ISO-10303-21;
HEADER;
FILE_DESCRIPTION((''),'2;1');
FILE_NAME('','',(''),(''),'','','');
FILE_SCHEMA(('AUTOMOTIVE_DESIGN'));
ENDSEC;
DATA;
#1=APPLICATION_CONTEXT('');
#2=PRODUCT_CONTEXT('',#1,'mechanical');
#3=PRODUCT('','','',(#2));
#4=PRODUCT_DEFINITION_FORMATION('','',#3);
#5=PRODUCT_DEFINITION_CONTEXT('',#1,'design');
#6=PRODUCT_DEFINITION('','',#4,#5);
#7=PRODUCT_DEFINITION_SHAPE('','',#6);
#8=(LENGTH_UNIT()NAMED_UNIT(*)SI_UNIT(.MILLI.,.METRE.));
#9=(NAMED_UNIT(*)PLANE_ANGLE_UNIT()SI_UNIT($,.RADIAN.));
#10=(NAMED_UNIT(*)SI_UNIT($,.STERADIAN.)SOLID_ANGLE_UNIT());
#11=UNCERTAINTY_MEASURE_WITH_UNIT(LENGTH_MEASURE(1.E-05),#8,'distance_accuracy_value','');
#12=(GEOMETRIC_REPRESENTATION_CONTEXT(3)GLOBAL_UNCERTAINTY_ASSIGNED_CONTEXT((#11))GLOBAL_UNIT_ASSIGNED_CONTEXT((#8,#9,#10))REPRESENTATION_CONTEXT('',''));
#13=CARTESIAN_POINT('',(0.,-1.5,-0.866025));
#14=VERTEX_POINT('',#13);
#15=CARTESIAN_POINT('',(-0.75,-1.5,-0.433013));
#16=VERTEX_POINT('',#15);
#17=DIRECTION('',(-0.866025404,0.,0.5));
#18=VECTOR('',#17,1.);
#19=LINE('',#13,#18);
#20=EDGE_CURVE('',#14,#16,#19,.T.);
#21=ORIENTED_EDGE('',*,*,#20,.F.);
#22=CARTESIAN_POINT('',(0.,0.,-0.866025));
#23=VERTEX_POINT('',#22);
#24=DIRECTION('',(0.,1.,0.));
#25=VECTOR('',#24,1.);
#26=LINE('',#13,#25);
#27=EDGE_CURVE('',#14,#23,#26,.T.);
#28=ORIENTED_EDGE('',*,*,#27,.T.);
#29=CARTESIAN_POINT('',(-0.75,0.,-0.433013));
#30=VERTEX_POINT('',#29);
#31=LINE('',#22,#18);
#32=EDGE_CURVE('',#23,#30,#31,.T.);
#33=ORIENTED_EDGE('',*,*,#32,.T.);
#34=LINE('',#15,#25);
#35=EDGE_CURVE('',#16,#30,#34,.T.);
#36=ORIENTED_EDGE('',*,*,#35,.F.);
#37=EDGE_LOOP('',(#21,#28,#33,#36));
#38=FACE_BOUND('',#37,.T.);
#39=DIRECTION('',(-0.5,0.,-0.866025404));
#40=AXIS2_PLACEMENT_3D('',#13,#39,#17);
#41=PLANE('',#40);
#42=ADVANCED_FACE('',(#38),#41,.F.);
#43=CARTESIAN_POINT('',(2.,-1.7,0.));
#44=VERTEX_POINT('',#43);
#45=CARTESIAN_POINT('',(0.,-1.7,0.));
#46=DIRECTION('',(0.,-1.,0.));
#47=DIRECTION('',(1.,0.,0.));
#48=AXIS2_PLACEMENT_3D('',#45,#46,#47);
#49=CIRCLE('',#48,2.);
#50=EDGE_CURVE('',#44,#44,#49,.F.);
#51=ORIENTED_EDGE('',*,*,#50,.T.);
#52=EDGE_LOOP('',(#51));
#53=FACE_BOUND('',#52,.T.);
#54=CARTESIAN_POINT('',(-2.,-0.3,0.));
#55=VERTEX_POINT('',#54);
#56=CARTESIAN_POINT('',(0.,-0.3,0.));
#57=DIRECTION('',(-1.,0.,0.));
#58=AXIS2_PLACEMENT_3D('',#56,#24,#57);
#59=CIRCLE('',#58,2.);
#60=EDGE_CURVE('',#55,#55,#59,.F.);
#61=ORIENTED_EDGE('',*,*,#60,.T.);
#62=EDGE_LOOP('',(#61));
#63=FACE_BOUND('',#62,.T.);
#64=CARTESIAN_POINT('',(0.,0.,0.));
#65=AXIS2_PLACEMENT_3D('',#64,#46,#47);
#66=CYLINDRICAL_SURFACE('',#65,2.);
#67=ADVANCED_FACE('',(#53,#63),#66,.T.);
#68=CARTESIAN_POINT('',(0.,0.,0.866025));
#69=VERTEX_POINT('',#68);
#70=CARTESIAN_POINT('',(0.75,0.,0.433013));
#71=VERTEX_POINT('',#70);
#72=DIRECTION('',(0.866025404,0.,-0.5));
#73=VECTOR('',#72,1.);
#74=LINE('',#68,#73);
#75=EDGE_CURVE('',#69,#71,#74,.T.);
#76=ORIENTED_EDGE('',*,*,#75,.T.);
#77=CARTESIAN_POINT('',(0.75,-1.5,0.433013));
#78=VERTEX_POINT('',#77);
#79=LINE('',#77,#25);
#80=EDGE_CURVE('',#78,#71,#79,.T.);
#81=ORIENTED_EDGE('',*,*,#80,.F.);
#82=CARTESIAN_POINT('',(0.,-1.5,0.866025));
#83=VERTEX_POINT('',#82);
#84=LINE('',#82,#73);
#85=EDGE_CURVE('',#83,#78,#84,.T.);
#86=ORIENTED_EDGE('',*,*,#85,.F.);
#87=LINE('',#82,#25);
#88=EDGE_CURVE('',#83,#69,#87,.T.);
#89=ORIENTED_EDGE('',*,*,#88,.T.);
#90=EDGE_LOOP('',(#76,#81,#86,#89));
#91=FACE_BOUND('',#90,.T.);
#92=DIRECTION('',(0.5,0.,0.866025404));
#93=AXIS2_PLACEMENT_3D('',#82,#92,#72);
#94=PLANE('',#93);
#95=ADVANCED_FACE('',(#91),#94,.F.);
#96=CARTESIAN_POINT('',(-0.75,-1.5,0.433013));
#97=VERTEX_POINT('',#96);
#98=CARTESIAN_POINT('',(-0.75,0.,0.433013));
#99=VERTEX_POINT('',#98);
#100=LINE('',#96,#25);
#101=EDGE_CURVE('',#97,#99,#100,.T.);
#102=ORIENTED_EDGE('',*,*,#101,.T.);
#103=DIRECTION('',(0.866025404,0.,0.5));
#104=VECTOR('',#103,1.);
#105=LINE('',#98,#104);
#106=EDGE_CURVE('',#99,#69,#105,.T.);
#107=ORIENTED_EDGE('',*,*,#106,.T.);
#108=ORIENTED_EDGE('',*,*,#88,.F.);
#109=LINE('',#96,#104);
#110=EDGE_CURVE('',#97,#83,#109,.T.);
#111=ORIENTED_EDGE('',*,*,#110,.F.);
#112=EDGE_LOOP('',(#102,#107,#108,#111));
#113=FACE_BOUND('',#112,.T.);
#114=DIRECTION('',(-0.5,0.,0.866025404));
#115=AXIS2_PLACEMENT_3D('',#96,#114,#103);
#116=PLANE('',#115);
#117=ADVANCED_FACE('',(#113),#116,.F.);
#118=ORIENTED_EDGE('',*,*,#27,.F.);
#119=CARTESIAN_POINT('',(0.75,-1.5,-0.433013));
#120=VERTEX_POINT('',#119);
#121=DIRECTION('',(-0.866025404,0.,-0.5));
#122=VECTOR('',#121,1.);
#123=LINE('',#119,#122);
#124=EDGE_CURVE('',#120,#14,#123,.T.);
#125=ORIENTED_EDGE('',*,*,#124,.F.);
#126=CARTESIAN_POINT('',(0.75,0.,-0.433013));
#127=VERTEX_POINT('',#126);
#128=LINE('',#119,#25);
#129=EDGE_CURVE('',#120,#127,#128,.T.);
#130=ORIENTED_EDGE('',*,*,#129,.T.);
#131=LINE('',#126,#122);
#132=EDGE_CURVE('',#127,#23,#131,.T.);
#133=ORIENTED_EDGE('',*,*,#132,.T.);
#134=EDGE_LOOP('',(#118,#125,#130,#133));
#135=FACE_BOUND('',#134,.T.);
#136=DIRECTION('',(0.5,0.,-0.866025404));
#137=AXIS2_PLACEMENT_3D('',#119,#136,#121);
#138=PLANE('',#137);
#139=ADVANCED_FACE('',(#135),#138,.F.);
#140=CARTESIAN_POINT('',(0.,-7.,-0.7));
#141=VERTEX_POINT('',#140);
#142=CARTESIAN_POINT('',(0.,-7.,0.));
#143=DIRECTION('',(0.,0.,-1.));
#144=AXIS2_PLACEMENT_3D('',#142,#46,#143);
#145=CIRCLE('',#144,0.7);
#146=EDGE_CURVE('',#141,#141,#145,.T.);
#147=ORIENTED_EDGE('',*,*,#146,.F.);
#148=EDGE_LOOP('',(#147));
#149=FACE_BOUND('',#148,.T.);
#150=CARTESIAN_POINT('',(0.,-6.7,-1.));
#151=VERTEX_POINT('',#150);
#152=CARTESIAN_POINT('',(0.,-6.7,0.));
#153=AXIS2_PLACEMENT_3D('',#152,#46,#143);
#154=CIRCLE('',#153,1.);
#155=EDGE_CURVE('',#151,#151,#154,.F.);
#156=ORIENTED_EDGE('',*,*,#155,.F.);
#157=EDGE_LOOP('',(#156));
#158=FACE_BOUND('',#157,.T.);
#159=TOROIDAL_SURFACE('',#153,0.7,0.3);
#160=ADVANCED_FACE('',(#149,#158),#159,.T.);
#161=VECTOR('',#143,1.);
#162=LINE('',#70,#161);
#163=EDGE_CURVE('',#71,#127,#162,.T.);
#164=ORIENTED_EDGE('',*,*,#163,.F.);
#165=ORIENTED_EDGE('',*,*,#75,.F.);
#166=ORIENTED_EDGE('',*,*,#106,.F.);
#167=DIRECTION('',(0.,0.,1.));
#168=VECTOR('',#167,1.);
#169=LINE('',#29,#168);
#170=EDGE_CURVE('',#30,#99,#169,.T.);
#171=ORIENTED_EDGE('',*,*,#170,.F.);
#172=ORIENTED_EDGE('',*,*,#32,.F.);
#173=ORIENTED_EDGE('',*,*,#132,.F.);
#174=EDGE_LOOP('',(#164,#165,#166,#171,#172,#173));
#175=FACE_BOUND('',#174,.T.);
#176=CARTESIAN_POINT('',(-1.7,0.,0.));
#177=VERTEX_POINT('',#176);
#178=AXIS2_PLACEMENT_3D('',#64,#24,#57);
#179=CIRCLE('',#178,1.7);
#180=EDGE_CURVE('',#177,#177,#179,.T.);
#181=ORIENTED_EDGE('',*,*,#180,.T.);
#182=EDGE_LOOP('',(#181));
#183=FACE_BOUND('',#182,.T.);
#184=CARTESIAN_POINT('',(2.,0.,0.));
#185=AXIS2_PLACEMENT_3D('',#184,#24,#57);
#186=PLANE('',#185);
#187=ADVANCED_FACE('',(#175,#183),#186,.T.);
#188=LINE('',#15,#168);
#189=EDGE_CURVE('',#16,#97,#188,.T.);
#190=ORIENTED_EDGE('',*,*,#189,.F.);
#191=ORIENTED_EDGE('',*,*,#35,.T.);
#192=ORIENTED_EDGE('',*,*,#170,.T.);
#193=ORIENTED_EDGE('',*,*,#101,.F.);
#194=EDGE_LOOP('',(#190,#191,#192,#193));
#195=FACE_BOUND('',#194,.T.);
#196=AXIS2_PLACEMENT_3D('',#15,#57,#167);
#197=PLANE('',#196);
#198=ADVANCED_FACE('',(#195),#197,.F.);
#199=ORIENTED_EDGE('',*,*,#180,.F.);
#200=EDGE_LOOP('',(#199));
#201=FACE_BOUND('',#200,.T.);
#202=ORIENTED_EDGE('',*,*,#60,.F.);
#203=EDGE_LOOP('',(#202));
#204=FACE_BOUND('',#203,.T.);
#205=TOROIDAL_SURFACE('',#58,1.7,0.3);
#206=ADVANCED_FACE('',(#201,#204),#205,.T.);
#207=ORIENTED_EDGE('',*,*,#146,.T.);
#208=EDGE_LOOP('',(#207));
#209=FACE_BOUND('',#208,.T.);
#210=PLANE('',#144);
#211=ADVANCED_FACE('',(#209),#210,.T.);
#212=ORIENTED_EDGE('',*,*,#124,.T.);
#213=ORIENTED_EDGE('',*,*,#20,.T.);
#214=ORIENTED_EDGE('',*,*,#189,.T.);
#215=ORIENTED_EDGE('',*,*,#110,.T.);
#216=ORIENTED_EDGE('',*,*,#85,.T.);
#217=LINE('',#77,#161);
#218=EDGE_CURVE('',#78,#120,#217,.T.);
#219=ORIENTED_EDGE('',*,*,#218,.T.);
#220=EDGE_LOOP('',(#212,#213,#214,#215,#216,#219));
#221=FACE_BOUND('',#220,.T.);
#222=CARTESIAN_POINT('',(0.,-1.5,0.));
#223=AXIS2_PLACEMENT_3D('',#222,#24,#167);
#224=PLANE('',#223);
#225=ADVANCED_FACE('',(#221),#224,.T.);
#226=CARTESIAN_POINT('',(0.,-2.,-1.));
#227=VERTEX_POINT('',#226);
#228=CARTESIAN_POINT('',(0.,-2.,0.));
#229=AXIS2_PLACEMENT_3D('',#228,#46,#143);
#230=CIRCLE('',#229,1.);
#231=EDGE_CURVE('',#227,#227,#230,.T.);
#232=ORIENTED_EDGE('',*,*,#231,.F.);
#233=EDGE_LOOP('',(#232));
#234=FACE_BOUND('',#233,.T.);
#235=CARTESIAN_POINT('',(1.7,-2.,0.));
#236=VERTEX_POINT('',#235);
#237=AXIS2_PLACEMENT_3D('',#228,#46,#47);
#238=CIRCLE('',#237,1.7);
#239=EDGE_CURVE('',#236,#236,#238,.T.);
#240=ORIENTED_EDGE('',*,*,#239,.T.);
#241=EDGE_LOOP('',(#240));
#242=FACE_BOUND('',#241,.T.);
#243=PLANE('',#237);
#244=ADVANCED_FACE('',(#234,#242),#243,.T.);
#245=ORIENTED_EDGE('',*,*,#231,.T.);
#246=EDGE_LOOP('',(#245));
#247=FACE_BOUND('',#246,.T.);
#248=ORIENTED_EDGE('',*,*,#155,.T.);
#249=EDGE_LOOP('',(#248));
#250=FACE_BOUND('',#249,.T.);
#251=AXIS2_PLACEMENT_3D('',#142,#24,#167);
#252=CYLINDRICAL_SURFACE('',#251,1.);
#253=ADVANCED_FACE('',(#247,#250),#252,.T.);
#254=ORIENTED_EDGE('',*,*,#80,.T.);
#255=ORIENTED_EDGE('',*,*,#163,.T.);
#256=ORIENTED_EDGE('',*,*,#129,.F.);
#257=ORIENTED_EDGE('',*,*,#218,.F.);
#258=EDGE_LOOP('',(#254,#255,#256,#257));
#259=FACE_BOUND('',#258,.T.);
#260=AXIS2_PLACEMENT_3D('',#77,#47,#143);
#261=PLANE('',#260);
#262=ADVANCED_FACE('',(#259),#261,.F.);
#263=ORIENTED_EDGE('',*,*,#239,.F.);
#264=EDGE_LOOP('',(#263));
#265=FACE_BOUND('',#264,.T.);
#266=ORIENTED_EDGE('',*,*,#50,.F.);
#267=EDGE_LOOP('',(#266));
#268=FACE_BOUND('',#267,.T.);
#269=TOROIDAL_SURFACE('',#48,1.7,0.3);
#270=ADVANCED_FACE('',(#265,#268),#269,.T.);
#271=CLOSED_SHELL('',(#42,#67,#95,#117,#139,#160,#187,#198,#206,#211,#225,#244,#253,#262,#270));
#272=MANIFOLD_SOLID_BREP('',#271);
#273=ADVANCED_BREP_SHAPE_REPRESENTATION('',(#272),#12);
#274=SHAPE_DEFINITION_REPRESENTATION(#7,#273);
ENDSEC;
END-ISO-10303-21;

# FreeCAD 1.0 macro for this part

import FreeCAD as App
import Part
import Sketcher
from FreeCAD import Vector
Q = App.Units.Quantity


def edges_at(feature, points):
    """Names of the edges that pass closest to the given points."""
    edges = feature.Shape.Edges
    near = lambda p: min(range(len(edges)), key=lambda i: edges[i].distToShape(Part.Vertex(*p))[0])
    return sorted({f"Edge{near(p) + 1}" for p in points})

doc = App.newDocument("Part")
params = doc.addObject("Spreadsheet::Sheet", "Params")
for row, (alias, value) in enumerate([
    ("sketch1_width", "2 mm"),
    ("revolution_angle", "360 deg"),
    ("sketch2_diameter", "2 mm"),
    ("pad1_length", "5 mm"),
    ("pocket1_length", "1.5 mm"),
    ("fillet_radius", "0.3 mm"),
], start=1):
    params.set(f"A{row}", alias)
    params.set(f"B{row}", "=" + value)
    params.setAlias(f"B{row}", alias)

body = doc.addObject("PartDesign::Body", "Body")

# Sketch on XY plane
sketch1 = doc.addObject("Sketcher::SketchObject", "Sketch")
body.addObject(sketch1)
sketch1.AttachmentSupport = (doc.XY_Plane, [""])
sketch1.MapMode = "FlatFace"
sketch1.addGeometry(Part.LineSegment(Vector(0, 0, 0), Vector(0, -2, 0)), False)
sketch1.addGeometry(Part.LineSegment(Vector(0, -2, 0), Vector(2, -2, 0)), False)
sketch1.addGeometry(Part.LineSegment(Vector(2, -2, 0), Vector(2, 0, 0)), False)
sketch1.addGeometry(Part.LineSegment(Vector(2, 0, 0), Vector(0, 0, 0)), False)
sketch1.addConstraint(Sketcher.Constraint("Coincident", 0, 2, 1, 1))
sketch1.addConstraint(Sketcher.Constraint("Coincident", 1, 2, 2, 1))
sketch1.addConstraint(Sketcher.Constraint("Coincident", 2, 2, 3, 1))
sketch1.addConstraint(Sketcher.Constraint("Coincident", 3, 2, 0, 1))
sketch1.addConstraint(Sketcher.Constraint("Vertical", 0))
sketch1.addConstraint(Sketcher.Constraint("Horizontal", 1))
sketch1.addConstraint(Sketcher.Constraint("Vertical", 2))
sketch1.addConstraint(Sketcher.Constraint("Horizontal", 3))
sketch1.addConstraint(Sketcher.Constraint("Coincident", 3, 2, -1, 1))
sketch1.addConstraint(Sketcher.Constraint("Equal", 3, 0))
sketch1.addConstraint(Sketcher.Constraint("DistanceX", 1, 1, 1, 2, Q("2 mm")))
sketch1.setExpression("Constraints[10]", "Params.sketch1_width")
revolution = doc.addObject("PartDesign::Revolution", "Revolution")
body.addObject(revolution)
revolution.Profile = sketch1
revolution.ReferenceAxis = (sketch1, ["V_Axis"])
revolution.setExpression("Angle", "Params.revolution_angle")

# Sketch on XZ plane
sketch2 = doc.addObject("Sketcher::SketchObject", "Sketch001")
body.addObject(sketch2)
sketch2.AttachmentSupport = (doc.XZ_Plane, [""])
sketch2.MapMode = "FlatFace"
sketch2.AttachmentOffset = App.Placement(Vector(0, 0, 2), App.Rotation())
sketch2.addGeometry(Part.Circle(Vector(0, 0, 0), Vector(0, 0, 1), 1), False)
sketch2.addConstraint(Sketcher.Constraint("Coincident", 0, 3, -1, 1))
sketch2.addConstraint(Sketcher.Constraint("Diameter", 0, Q("2 mm")))
sketch2.setExpression("Constraints[1]", "Params.sketch2_diameter")
pad1 = doc.addObject("PartDesign::Pad", "Pad")
body.addObject(pad1)
pad1.Profile = sketch2
pad1.setExpression("Length", "Params.pad1_length")

# Sketch on XZ plane
sketch3 = doc.addObject("Sketcher::SketchObject", "Sketch002")
body.addObject(sketch3)
sketch3.AttachmentSupport = (doc.XZ_Plane, [""])
sketch3.MapMode = "FlatFace"
sketch3.addGeometry(Part.LineSegment(Vector(0, -0.9, 0), Vector(-0.8, -0.4, 0)), False)
sketch3.addGeometry(Part.LineSegment(Vector(-0.8, -0.4, 0), Vector(-0.8, 0.4, 0)), False)
sketch3.addGeometry(Part.LineSegment(Vector(-0.8, 0.4, 0), Vector(0, 0.9, 0)), False)
sketch3.addGeometry(Part.LineSegment(Vector(0, 0.9, 0), Vector(0.8, 0.4, 0)), False)
sketch3.addGeometry(Part.LineSegment(Vector(0.8, 0.4, 0), Vector(0.8, -0.4, 0)), False)
sketch3.addGeometry(Part.LineSegment(Vector(0.8, -0.4, 0), Vector(0, -0.9, 0)), False)
sketch3.addConstraint(Sketcher.Constraint("Coincident", 0, 2, 1, 1))
sketch3.addConstraint(Sketcher.Constraint("Coincident", 1, 2, 2, 1))
sketch3.addConstraint(Sketcher.Constraint("Coincident", 2, 2, 3, 1))
sketch3.addConstraint(Sketcher.Constraint("Coincident", 3, 2, 4, 1))
sketch3.addConstraint(Sketcher.Constraint("Coincident", 4, 2, 5, 1))
sketch3.addConstraint(Sketcher.Constraint("Coincident", 5, 2, 0, 1))
sketch3.addConstraint(Sketcher.Constraint("Vertical", 1))
sketch3.addConstraint(Sketcher.Constraint("Vertical", 4))
sketch3.addConstraint(Sketcher.Constraint("Symmetric", 0, 2, 3, 2, -1, 1))
sketch3.addConstraint(Sketcher.Constraint("Symmetric", 2, 2, 5, 2, -1, 1))
sketch3.addConstraint(Sketcher.Constraint("PointOnObject", 2, 2, -2))
sketch3.addConstraint(Sketcher.Constraint("Parallel", 2, 5))
sketch3.addConstraint(Sketcher.Constraint("Horizontal", 1, 2, 3, 2))
sketch3.addConstraint(Sketcher.Constraint("Angle", 0, Q("150 deg")))
sketch3.addConstraint(Sketcher.Constraint("DistanceX", 1, 2, 3, 2, Q("1.5 mm")))
sketch3.addConstraint(Sketcher.Constraint("DistanceY", 1, 1, 1, 2, Q("0.866025 mm")))
pocket1 = doc.addObject("PartDesign::Pocket", "Pocket")
body.addObject(pocket1)
pocket1.Profile = sketch3
pocket1.setExpression("Length", "Params.pocket1_length")
pocket1.Reversed = True
doc.recompute()

fillet = doc.addObject("PartDesign::Fillet", "Fillet")
body.addObject(fillet)
fillet.Base = (pocket1, edges_at(pocket1, [(-1, -7, 0), (-2, -2, 0), (-2, 0, 0)]))
fillet.setExpression("Radius", "Params.fillet_radius")

doc.recompute()
